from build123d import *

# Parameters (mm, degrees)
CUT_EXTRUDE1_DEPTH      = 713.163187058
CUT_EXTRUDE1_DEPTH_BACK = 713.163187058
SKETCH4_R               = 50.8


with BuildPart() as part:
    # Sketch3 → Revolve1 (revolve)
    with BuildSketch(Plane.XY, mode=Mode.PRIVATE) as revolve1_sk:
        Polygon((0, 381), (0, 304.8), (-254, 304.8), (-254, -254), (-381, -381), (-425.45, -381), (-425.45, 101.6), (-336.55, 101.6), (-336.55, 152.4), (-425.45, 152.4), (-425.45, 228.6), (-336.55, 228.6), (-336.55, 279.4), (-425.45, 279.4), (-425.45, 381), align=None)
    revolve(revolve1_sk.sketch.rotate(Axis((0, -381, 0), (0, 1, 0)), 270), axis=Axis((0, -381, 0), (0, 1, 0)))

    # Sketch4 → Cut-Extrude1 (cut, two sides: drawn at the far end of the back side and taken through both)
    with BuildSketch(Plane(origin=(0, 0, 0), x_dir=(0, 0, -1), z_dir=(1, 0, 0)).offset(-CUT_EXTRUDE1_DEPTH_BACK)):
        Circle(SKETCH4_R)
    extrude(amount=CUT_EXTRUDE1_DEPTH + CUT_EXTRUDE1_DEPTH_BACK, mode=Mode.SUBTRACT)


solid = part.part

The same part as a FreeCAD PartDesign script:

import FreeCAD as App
import Part
import Sketcher
Q = App.Units.Quantity

doc = App.newDocument("Part")
body = doc.addObject("PartDesign::Body", "Body")

# Sketch on XY plane
sketch1 = body.newObject("Sketcher::SketchObject", "Sketch")
sketch1.AttachmentSupport = (doc.getObject("XY_Plane"), [""])
sketch1.MapMode = "FlatFace"
sketch1.addGeometry([
    Part.LineSegment(App.Vector(0, 305, 0), App.Vector(0, 381, 0)),  # 0
    Part.LineSegment(App.Vector(0, 381, 0), App.Vector(-425, 381, 0)),  # 1
    Part.LineSegment(App.Vector(-425, 381, 0), App.Vector(-425, 279, 0)),  # 2
    Part.LineSegment(App.Vector(-425, 279, 0), App.Vector(-337, 279, 0)),  # 3
    Part.LineSegment(App.Vector(-337, 279, 0), App.Vector(-337, 229, 0)),  # 4
    Part.LineSegment(App.Vector(-337, 229, 0), App.Vector(-425, 229, 0)),  # 5
    Part.LineSegment(App.Vector(-425, 229, 0), App.Vector(-425, 152, 0)),  # 6
    Part.LineSegment(App.Vector(-425, 152, 0), App.Vector(-337, 152, 0)),  # 7
    Part.LineSegment(App.Vector(-337, 152, 0), App.Vector(-337, 102, 0)),  # 8
    Part.LineSegment(App.Vector(-337, 102, 0), App.Vector(-425, 102, 0)),  # 9
    Part.LineSegment(App.Vector(-425, 102, 0), App.Vector(-425, -381, 0)),  # 10
    Part.LineSegment(App.Vector(-425, -381, 0), App.Vector(-381, -381, 0)),  # 11
    Part.LineSegment(App.Vector(-381, -381, 0), App.Vector(-254, -254, 0)),  # 12
    Part.LineSegment(App.Vector(-254, -254, 0), App.Vector(-254, 305, 0)),  # 13
    Part.LineSegment(App.Vector(-254, 305, 0), App.Vector(0, 305, 0)),  # 14
], False)
sketch1.addConstraint([
    Sketcher.Constraint("Coincident", 0, 2, 1, 1),
    Sketcher.Constraint("Coincident", 1, 2, 2, 1),
    Sketcher.Constraint("Coincident", 2, 2, 3, 1),
    Sketcher.Constraint("Coincident", 3, 2, 4, 1),
    Sketcher.Constraint("Coincident", 4, 2, 5, 1),
    Sketcher.Constraint("Coincident", 5, 2, 6, 1),
    Sketcher.Constraint("Coincident", 6, 2, 7, 1),
    Sketcher.Constraint("Coincident", 7, 2, 8, 1),
    Sketcher.Constraint("Coincident", 8, 2, 9, 1),
    Sketcher.Constraint("Coincident", 9, 2, 10, 1),
    Sketcher.Constraint("Coincident", 10, 2, 11, 1),
    Sketcher.Constraint("Coincident", 11, 2, 12, 1),
    Sketcher.Constraint("Coincident", 12, 2, 13, 1),
    Sketcher.Constraint("Coincident", 13, 2, 14, 1),
    Sketcher.Constraint("Coincident", 14, 2, 0, 1),
    Sketcher.Constraint("Vertical", 0),
    Sketcher.Constraint("Horizontal", 1),
    Sketcher.Constraint("Vertical", 2),
    Sketcher.Constraint("Horizontal", 3),
    Sketcher.Constraint("Vertical", 4),
    Sketcher.Constraint("Horizontal", 5),
    Sketcher.Constraint("Vertical", 6),
    Sketcher.Constraint("Horizontal", 7),
    Sketcher.Constraint("Vertical", 8),
    Sketcher.Constraint("Horizontal", 9),
    Sketcher.Constraint("Vertical", 10),
    Sketcher.Constraint("Horizontal", 11),
    Sketcher.Constraint("Vertical", 13),
    Sketcher.Constraint("Horizontal", 14),
    Sketcher.Constraint("Symmetric", 1, 2, 10, 2, -1),
    Sketcher.Constraint("PointOnObject", 0, 2, -2),
    Sketcher.Constraint("Vertical", 2, 2, 5, 2),
    Sketcher.Constraint("Vertical", 4, 2, 7, 2),
    Sketcher.Constraint("Equal", 0, 6),
    Sketcher.Constraint("Equal", 4, 8),
    Sketcher.Constraint("DistanceX", 14, 1, 14, 2, Q("10 in")),
    Sketcher.Constraint("DistanceY", 0, 1, 0, 2, Q("3 in")),
    Sketcher.Constraint("DistanceY", 2, 2, 2, 1, Q("4 in")),
    Sketcher.Constraint("DistanceY", 4, 2, 4, 1, Q("2 in")),
    Sketcher.Constraint("DistanceY", 10, 2, 10, 1, Q("19 in")),
    Sketcher.Constraint("DistanceY", 13, 1, 13, 2, Q("22 in")),
    Sketcher.Constraint("DistanceX", 3, 1, 3, 2, Q("3.5 in")),
    Sketcher.Constraint("DistanceX", 11, 2, -1, 1, Q("15 in")),
    Sketcher.Constraint("DistanceX", 1, 2, 1, 1, Q("16.75 in")),
])
revolution = body.newObject("PartDesign::Revolution", "Revolution")
revolution.Profile = sketch1
revolution.ReferenceAxis = (sketch1, ["V_Axis"])
revolution.Angle = 360

# Sketch on YZ plane
sketch2 = body.newObject("Sketcher::SketchObject", "Sketch001")
sketch2.AttachmentSupport = (doc.getObject("YZ_Plane"), [""])
sketch2.MapMode = "FlatFace"
sketch2.addGeometry(Part.Circle(App.Vector(0, 0, 0), App.Vector(0, 0, 1), 51), False)
sketch2.addConstraint([
    Sketcher.Constraint("Coincident", 0, 3, -1, 1),
    Sketcher.Constraint("Diameter", 0, Q("4 in")),
])
pocket1 = body.newObject("PartDesign::Pocket", "Pocket")
pocket1.Profile = sketch2
pocket1.Type = "ThroughAll"
pocket1.Midplane = True

doc.recompute()
